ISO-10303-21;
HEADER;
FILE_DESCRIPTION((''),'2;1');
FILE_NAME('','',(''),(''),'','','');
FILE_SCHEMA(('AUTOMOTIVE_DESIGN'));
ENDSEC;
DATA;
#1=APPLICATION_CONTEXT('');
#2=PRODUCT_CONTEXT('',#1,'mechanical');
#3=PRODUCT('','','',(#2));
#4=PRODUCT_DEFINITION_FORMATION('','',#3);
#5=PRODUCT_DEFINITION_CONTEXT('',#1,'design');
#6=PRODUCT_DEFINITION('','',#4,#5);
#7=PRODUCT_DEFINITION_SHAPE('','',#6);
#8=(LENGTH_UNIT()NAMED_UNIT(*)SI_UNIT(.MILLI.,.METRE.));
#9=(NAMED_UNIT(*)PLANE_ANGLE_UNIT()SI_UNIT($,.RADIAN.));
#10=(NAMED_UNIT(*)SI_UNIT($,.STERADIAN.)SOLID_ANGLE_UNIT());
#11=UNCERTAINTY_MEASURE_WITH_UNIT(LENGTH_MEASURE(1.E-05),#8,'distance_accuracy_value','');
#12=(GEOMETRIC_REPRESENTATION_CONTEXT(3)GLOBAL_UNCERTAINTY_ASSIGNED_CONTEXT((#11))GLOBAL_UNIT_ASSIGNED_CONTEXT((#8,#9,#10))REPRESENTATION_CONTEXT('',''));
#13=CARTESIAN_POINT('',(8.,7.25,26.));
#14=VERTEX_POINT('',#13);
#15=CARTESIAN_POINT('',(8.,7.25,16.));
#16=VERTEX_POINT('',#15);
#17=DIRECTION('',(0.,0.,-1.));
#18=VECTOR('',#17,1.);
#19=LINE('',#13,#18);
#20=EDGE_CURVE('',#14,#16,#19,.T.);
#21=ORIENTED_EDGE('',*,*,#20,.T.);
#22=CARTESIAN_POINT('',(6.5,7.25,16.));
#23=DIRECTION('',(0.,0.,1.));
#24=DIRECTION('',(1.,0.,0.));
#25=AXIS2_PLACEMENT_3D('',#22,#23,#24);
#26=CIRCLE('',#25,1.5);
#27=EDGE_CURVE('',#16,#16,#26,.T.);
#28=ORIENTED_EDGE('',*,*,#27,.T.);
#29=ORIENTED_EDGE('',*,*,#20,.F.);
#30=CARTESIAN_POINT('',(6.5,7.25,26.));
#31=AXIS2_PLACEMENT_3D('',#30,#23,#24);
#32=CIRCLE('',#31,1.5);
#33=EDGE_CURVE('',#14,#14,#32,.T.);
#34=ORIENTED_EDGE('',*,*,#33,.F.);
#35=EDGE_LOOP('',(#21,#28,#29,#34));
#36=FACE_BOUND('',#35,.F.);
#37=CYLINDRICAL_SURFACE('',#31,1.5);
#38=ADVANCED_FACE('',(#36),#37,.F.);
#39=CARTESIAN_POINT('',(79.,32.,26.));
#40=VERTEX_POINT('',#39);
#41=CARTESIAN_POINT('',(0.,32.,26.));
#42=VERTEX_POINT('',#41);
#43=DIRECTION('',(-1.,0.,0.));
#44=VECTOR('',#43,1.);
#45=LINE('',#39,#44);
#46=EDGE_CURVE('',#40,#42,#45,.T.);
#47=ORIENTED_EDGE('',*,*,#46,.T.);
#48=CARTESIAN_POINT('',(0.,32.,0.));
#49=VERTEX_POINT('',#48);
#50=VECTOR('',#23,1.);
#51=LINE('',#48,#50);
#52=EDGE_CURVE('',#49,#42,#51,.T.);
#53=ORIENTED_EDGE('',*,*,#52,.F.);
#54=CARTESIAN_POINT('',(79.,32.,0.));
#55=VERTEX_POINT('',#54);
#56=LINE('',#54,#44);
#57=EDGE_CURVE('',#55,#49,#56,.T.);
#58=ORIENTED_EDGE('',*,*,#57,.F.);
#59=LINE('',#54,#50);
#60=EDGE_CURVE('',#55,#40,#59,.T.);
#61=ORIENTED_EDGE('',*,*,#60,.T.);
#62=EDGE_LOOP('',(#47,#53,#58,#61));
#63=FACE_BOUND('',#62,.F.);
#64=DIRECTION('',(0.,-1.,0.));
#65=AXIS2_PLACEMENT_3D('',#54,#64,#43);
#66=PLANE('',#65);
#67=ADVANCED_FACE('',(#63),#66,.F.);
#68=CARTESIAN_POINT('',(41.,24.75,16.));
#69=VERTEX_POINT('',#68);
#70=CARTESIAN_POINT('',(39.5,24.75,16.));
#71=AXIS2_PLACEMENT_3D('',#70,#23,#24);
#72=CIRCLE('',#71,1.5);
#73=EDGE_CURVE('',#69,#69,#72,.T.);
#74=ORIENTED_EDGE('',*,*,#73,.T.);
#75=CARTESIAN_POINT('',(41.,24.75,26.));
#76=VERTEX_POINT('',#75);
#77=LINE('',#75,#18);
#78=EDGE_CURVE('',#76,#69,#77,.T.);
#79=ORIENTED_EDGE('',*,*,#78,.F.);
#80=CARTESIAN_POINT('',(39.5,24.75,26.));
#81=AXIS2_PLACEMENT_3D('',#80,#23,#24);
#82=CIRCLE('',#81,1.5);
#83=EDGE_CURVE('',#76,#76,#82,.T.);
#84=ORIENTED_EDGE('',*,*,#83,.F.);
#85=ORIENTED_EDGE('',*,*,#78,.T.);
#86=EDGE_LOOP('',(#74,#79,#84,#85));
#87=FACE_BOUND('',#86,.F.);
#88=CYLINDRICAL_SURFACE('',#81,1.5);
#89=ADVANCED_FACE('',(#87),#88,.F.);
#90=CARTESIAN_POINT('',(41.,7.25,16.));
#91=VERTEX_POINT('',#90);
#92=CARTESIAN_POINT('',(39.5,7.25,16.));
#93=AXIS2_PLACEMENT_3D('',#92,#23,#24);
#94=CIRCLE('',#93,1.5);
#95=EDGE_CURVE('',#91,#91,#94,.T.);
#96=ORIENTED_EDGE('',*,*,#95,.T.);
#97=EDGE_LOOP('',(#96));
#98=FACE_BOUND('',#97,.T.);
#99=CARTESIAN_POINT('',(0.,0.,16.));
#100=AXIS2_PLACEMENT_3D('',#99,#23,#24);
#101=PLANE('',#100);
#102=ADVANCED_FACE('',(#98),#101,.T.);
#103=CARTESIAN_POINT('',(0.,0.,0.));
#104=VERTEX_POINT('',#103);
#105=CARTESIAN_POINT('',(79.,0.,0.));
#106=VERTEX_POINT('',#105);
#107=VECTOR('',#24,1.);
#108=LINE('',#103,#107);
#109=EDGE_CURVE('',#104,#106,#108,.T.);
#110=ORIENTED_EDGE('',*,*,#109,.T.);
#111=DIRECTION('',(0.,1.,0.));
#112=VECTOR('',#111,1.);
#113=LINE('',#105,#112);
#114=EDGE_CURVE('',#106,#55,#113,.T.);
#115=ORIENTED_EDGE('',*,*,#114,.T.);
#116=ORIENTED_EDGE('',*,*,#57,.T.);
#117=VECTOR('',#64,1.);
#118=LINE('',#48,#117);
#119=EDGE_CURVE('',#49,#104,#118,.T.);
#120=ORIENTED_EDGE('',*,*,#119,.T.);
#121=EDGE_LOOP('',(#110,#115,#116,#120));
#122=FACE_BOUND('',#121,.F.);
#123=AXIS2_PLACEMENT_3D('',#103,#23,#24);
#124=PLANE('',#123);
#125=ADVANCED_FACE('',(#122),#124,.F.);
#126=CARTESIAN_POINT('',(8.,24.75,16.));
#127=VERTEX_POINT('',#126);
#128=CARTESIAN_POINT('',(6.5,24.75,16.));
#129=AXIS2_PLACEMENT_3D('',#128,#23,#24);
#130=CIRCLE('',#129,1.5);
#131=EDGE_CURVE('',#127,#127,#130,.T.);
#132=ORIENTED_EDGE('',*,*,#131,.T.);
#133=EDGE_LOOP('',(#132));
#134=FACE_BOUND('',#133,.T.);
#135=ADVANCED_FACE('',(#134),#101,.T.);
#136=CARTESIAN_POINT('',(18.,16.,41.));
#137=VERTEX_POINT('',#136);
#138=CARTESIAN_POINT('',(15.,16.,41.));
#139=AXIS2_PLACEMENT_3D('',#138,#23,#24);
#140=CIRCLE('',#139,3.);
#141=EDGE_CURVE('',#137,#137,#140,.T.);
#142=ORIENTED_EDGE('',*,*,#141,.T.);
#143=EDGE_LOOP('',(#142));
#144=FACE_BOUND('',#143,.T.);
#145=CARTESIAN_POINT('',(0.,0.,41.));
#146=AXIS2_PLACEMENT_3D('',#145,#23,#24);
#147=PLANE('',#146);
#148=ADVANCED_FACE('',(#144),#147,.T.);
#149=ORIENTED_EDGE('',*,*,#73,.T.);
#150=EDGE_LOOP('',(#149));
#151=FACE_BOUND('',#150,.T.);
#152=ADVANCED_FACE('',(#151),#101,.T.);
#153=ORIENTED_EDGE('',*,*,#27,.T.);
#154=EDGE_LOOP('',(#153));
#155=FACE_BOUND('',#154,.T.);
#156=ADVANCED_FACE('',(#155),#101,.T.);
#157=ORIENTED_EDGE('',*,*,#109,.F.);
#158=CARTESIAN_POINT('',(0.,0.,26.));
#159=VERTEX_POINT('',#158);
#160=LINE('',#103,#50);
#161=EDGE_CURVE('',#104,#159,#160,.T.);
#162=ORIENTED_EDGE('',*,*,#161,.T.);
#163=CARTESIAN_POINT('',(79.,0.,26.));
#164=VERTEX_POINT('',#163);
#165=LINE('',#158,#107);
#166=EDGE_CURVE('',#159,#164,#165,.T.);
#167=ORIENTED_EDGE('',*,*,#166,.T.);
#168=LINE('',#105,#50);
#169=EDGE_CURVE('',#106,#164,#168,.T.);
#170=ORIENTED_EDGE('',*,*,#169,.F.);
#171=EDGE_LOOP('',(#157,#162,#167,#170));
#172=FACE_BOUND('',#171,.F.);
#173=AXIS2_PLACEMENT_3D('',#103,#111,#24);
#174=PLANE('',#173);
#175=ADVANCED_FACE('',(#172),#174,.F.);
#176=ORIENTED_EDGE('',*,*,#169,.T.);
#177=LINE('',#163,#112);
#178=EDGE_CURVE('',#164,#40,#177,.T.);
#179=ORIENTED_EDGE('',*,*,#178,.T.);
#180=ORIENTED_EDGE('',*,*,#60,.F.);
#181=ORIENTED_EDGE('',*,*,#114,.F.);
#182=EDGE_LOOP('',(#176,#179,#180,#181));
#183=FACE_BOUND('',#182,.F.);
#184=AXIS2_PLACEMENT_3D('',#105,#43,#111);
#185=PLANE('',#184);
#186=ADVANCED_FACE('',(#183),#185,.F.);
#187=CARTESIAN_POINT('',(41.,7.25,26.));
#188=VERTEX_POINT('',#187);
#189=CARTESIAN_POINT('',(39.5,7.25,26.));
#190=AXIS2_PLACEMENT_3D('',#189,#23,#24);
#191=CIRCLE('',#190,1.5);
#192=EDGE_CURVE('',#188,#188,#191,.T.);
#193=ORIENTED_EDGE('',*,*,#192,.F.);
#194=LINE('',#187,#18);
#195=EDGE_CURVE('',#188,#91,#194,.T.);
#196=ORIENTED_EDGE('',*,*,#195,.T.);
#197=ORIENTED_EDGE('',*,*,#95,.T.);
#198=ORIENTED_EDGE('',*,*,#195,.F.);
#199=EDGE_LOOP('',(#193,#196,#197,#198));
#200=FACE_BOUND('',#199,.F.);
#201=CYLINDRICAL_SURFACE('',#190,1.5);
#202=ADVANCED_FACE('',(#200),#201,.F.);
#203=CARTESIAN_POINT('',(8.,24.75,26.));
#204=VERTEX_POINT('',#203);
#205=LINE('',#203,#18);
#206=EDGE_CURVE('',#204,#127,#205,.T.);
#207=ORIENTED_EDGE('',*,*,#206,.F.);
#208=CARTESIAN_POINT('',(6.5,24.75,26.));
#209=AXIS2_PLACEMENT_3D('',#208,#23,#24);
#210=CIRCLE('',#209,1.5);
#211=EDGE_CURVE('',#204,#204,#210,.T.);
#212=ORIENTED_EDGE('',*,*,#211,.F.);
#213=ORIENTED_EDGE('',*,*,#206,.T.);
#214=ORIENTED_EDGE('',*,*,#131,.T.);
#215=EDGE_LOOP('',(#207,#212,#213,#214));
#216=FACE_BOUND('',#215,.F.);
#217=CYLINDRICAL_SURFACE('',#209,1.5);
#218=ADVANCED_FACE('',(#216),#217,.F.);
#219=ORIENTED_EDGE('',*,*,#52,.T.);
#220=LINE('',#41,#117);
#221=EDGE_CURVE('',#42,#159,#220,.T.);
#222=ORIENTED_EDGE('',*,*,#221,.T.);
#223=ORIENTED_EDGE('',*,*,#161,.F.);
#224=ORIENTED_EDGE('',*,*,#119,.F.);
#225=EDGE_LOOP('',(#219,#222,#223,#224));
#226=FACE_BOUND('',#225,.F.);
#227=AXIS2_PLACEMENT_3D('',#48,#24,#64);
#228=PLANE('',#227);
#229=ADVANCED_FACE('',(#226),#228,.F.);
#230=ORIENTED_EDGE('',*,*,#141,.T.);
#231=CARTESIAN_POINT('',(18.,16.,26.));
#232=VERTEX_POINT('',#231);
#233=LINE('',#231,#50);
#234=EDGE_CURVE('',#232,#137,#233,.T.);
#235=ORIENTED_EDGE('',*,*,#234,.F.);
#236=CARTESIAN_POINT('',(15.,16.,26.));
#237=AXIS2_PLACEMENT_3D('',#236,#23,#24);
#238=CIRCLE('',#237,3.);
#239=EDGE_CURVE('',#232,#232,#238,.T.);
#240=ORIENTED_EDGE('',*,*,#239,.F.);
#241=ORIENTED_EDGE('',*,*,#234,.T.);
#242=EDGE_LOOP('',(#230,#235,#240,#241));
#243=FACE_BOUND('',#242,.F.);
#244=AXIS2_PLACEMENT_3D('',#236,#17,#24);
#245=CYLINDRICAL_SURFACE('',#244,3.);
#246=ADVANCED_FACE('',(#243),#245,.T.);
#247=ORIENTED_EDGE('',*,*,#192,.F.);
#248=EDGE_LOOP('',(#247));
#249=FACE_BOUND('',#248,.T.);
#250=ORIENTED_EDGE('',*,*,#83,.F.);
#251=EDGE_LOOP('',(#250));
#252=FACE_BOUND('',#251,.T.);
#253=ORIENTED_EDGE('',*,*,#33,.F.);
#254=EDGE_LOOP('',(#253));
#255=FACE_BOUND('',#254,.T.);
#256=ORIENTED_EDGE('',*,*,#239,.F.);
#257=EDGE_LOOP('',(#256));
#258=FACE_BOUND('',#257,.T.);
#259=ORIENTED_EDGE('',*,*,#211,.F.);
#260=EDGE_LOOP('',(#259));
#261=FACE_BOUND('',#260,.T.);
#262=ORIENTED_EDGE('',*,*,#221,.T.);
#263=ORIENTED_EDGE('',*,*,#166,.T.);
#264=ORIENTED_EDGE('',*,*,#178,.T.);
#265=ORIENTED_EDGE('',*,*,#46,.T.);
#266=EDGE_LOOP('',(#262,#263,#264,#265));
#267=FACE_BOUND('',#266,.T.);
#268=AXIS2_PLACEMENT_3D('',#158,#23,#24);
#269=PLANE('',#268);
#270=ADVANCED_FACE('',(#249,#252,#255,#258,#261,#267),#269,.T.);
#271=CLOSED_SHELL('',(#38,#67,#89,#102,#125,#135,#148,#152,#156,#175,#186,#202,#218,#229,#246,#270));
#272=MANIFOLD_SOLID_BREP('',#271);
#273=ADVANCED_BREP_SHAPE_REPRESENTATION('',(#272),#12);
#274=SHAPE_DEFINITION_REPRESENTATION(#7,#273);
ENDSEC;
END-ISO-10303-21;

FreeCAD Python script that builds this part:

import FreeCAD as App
import Part
import Sketcher
from FreeCAD import Vector
Q = App.Units.Quantity

doc = App.newDocument("Part")
body = doc.addObject("PartDesign::Body", "Body")

sketch1 = body.newObject("Sketcher::SketchObject", "Sketch")
sketch1.AttachmentSupport = (doc.getObject("XY_Plane"), [""])
sketch1.MapMode = "FlatFace"
sketch1.addGeometry([
    Part.LineSegment(Vector(0, 32, 0), Vector(0, 0, 0)),
    Part.LineSegment(Vector(0, 0, 0), Vector(79, 0, 0)),
    Part.LineSegment(Vector(79, 0, 0), Vector(79, 32, 0)),
    Part.LineSegment(Vector(79, 32, 0), Vector(0, 32, 0)),
], False)
sketch1.addConstraint([
    Sketcher.Constraint("Coincident", 0, 2, 1, 1),
    Sketcher.Constraint("Coincident", 1, 2, 2, 1),
    Sketcher.Constraint("Coincident", 2, 2, 3, 1),
    Sketcher.Constraint("Coincident", 3, 2, 0, 1),
    Sketcher.Constraint("Vertical", 0),
    Sketcher.Constraint("Horizontal", 1),
    Sketcher.Constraint("Vertical", 2),
    Sketcher.Constraint("Horizontal", 3),
    Sketcher.Constraint("Coincident", 0, 2, -1, 1),
    Sketcher.Constraint("DistanceX", 1, 1, 1, 2, Q("79 mm")),
    Sketcher.Constraint("DistanceY", 0, 2, 0, 1, Q("32 mm")),
])
pad1 = body.newObject("PartDesign::Pad", "Pad")
pad1.Profile = sketch1
pad1.Length = 26

sketch2 = body.newObject("Sketcher::SketchObject", "Sketch001")
sketch2.AttachmentSupport = (doc.getObject("XY_Plane"), [""])
sketch2.MapMode = "FlatFace"
sketch2.AttachmentOffset = App.Placement(Vector(0, 0, 26), App.Rotation())
sketch2.addGeometry(Part.Circle(Vector(15, 16, 0), Vector(0, 0, 1), 3), False)
sketch2.addConstraint([
    Sketcher.Constraint("Diameter", 0, Q("6 mm")),
    Sketcher.Constraint("DistanceX", -1, 1, 0, 3, Q("15 mm")),
    Sketcher.Constraint("DistanceY", -1, 1, 0, 3, Q("16 mm")),
])
pad2 = body.newObject("PartDesign::Pad", "Pad001")
pad2.Profile = sketch2
pad2.Length = 15

sketch3 = body.newObject("Sketcher::SketchObject", "Sketch002")
sketch3.AttachmentSupport = (doc.getObject("XY_Plane"), [""])
sketch3.MapMode = "FlatFace"
sketch3.AttachmentOffset = App.Placement(Vector(0, 0, 26), App.Rotation())
sketch3.addGeometry([
    Part.Circle(Vector(6.5, 24.8, 0), Vector(0, 0, 1), 1.5),
    Part.Circle(Vector(6.5, 7.2, 0), Vector(0, 0, 1), 1.5),
    Part.Circle(Vector(39.5, 24.8, 0), Vector(0, 0, 1), 1.5),
    Part.Circle(Vector(39.5, 7.2, 0), Vector(0, 0, 1), 1.5),
], False)
sketch3.addConstraint([
    Sketcher.Constraint("Equal", 0, 1),
    Sketcher.Constraint("Equal", 1, 2),
    Sketcher.Constraint("Equal", 2, 3),
    Sketcher.Constraint("Horizontal", 0, 3, 2, 3),
    Sketcher.Constraint("Horizontal", 1, 3, 3, 3),
    Sketcher.Constraint("Vertical", 0, 3, 1, 3),
    Sketcher.Constraint("Vertical", 2, 3, 3, 3),
    Sketcher.Constraint("Diameter", 0, Q("3 mm")),
    Sketcher.Constraint("DistanceX", 0, 3, 2, 3, Q("33 mm")),
    Sketcher.Constraint("DistanceY", 1, 3, 0, 3, Q("17.5 mm")),
    Sketcher.Constraint("DistanceX", -1, 1, 0, 3, Q("6.5 mm")),
    Sketcher.Constraint("DistanceY", -1, 1, 0, 3, Q("24.75 mm")),
])
pocket1 = body.newObject("PartDesign::Pocket", "Pocket")
pocket1.Profile = sketch3
pocket1.Length = 10

doc.recompute()
